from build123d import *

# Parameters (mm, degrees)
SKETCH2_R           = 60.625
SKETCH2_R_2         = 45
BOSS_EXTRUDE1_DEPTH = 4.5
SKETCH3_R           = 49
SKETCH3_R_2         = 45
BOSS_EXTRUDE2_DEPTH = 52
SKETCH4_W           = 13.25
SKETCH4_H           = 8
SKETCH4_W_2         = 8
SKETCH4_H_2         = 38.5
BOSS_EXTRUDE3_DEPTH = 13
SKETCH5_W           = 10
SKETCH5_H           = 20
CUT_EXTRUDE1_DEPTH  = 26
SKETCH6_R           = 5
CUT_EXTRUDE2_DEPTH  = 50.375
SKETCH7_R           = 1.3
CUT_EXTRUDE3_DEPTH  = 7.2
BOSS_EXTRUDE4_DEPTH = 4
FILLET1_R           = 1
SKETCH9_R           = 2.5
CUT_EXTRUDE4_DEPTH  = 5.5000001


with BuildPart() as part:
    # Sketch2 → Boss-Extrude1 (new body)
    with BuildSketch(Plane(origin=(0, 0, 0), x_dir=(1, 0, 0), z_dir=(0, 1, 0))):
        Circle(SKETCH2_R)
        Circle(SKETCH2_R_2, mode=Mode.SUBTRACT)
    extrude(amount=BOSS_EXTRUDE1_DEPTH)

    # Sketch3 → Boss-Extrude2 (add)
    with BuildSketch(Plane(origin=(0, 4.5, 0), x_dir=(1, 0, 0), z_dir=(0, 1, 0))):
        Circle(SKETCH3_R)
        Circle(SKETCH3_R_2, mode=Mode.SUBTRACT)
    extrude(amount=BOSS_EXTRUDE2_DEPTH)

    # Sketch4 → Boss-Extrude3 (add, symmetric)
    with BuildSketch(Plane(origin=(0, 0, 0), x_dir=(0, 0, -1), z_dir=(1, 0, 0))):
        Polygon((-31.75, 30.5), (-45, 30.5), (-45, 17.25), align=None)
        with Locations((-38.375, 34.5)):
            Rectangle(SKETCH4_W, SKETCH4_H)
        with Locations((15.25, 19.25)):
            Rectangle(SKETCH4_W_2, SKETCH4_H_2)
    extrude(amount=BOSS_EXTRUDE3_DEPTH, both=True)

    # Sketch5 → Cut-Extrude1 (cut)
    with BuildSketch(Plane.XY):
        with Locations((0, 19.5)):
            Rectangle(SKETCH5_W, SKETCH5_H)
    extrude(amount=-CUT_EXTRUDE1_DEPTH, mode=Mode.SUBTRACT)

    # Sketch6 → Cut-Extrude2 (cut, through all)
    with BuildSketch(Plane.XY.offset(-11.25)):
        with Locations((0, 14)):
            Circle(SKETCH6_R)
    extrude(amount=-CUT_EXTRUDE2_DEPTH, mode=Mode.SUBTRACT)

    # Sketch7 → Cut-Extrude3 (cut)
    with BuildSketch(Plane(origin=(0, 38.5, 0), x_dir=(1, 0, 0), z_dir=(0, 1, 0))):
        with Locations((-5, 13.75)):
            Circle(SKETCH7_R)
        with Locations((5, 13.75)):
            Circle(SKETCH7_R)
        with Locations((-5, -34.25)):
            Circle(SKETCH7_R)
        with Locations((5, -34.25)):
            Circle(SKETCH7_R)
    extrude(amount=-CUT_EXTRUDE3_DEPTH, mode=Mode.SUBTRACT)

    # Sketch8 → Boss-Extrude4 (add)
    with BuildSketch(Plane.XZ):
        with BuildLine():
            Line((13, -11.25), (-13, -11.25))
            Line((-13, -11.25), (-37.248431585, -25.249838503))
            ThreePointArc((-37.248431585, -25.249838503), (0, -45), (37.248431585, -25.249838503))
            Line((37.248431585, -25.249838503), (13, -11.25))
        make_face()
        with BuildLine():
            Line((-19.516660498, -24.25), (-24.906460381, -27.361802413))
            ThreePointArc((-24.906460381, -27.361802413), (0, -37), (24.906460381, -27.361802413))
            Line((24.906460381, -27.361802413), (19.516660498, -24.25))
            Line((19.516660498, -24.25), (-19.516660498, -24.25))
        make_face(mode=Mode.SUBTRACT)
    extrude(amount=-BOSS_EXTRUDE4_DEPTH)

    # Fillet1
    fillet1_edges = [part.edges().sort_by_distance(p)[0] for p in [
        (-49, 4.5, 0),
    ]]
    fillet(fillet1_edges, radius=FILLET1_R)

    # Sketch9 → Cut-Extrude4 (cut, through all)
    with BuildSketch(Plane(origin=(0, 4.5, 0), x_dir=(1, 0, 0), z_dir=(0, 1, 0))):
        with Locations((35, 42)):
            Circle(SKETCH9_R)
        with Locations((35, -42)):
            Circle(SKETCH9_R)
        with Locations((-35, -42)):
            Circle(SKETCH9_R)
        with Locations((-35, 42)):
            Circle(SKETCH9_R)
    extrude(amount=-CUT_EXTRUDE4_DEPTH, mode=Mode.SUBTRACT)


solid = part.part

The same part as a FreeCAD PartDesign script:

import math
import FreeCAD as App
import Part
import Sketcher
Q = App.Units.Quantity


def edges_at(feature, points):
    """Names of the edges that pass closest to the given points."""
    edges = feature.Shape.Edges
    near = lambda p: min(range(len(edges)), key=lambda i: edges[i].distToShape(Part.Vertex(*p))[0])
    return sorted({f"Edge{near(p) + 1}" for p in points})


def add_polygon(sketch, points):
    """Adds a closed chain of lines whose ends are joined by coincident constraints."""
    first, n = sketch.GeometryCount, len(points)
    for a, b in zip(points, points[1:] + points[:1]):
        sketch.addGeometry(Part.LineSegment(App.Vector(*a, 0), App.Vector(*b, 0)), False)
    for i in range(n):
        sketch.addConstraint(Sketcher.Constraint("Coincident", first + i, 2, first + (i + 1) % n, 1))

doc = App.newDocument("Part")
params = doc.addObject("Spreadsheet::Sheet", "Params")
for row, (alias, value) in enumerate([
    ("sketch1_diameter", "90 mm"),
    ("sketch1_diameter2", "121.25 mm"),
    ("pad1_length", "4.5 mm"),
    ("sketch2_diameter", "98 mm"),
    ("sketch2_diameter2", "90 mm"),
    ("pad2_length", "52 mm"),
    ("sketch3_width", "8 mm"),
    ("sketch3_width2", "38.5 mm"),
    ("sketch3_width3", "21.25 mm"),
    ("pad3_length", "26 mm"),
    ("sketch4_width", "10 mm"),
    ("sketch4_height", "20 mm"),
    ("pocket1_length", "26 mm"),
    ("sketch5_diameter", "10 mm"),
    ("sketch6_diameter", "2.6 mm"),
    ("pocket3_length", "7.2 mm"),
    ("sketch7_radius", "45 mm"),
    ("sketch7_radius2", "37 mm"),
    ("sketch7_width", "26 mm"),
    ("pad4_length", "4 mm"),
    ("fillet_radius", "1 mm"),
    ("sketch8_diameter", "5 mm"),
], start=1):
    params.set(f"A{row}", alias)
    params.set(f"B{row}", "=" + value)
    params.setAlias(f"B{row}", alias)

body = doc.addObject("PartDesign::Body", "Body")
body.AllowCompound = True

sketch1 = doc.addObject("Sketcher::SketchObject", "Sketch")
body.addObject(sketch1)
sketch1.AttachmentSupport = (doc.XZ_Plane, [""])
sketch1.MapMode = "FlatFace"
sketch1.addGeometry(Part.Circle(App.Vector(0, 0, 0), App.Vector(0, 0, 1), 61), False)
sketch1.addGeometry(Part.Circle(App.Vector(0, 0, 0), App.Vector(0, 0, 1), 45), False)
sketch1.addConstraint(Sketcher.Constraint("Coincident", 0, 3, -1, 1))
sketch1.addConstraint(Sketcher.Constraint("Coincident", 1, 3, -1, 1))
sketch1.addConstraint(Sketcher.Constraint("Diameter", 1, 90.0))
sketch1.addConstraint(Sketcher.Constraint("Diameter", 0, 121.25))
sketch1.setExpression("Constraints[2]", "Params.sketch1_diameter")
sketch1.setExpression("Constraints[3]", "Params.sketch1_diameter2")
pad1 = doc.addObject("PartDesign::Pad", "Pad")
body.addObject(pad1)
pad1.Profile = sketch1
pad1.setExpression("Length", "Params.pad1_length")
pad1.Reversed = True

sketch2 = doc.addObject("Sketcher::SketchObject", "Sketch001")
body.addObject(sketch2)
sketch2.AttachmentSupport = (doc.XZ_Plane, [""])
sketch2.MapMode = "FlatFace"
sketch2.AttachmentOffset = App.Placement(App.Vector(0, 0, -4.5), App.Rotation())
sketch2.addGeometry(Part.Circle(App.Vector(0, 0, 0), App.Vector(0, 0, 1), 49), False)
sketch2.addGeometry(Part.Circle(App.Vector(0, 0, 0), App.Vector(0, 0, 1), 45), False)
sketch2.addConstraint(Sketcher.Constraint("Coincident", 0, 3, -1, 1))
sketch2.addConstraint(Sketcher.Constraint("Coincident", 1, 3, -1, 1))
sketch2.addConstraint(Sketcher.Constraint("Diameter", 0, 98.0))
sketch2.addConstraint(Sketcher.Constraint("Diameter", 1, 90.0))
sketch2.setExpression("Constraints[2]", "Params.sketch2_diameter")
sketch2.setExpression("Constraints[3]", "Params.sketch2_diameter2")
pad2 = doc.addObject("PartDesign::Pad", "Pad001")
body.addObject(pad2)
pad2.Profile = sketch2
pad2.setExpression("Length", "Params.pad2_length")
pad2.Reversed = True

sketch3 = doc.addObject("Sketcher::SketchObject", "Sketch002")
body.addObject(sketch3)
sketch3.AttachmentSupport = (doc.YZ_Plane, [""])
sketch3.MapMode = "FlatFace"
add_polygon(sketch3, [(17, 45), (30, 32), (38, 32), (38, 45)])
add_polygon(sketch3, [(38, -11), (0, -11), (0, -19), (38, -19)])
sketch3.addConstraint(Sketcher.Constraint("Horizontal", 1))
sketch3.addConstraint(Sketcher.Constraint("Vertical", 2))
sketch3.addConstraint(Sketcher.Constraint("Horizontal", 3))
sketch3.addConstraint(Sketcher.Constraint("Horizontal", 4))
sketch3.addConstraint(Sketcher.Constraint("Vertical", 5))
sketch3.addConstraint(Sketcher.Constraint("Horizontal", 6))
sketch3.addConstraint(Sketcher.Constraint("Vertical", 7))
sketch3.addConstraint(Sketcher.Constraint("PointOnObject", 4, 2, -2))
sketch3.addConstraint(Sketcher.Constraint("Vertical", 2, 2, 6, 2))
sketch3.addConstraint(Sketcher.Constraint("Equal", 1, 5))
sketch3.addConstraint(Sketcher.Constraint("DistanceX", 1, 1, 1, 2, 8.0))
sketch3.addConstraint(Sketcher.Constraint("Angle", 0, Q("-45 deg")))
sketch3.addConstraint(Sketcher.Constraint("DistanceX", 4, 2, 4, 1, 38.5))
sketch3.addConstraint(Sketcher.Constraint("DistanceY", -1, 1, 2, 2, 45.0))
sketch3.addConstraint(Sketcher.Constraint("DistanceY", 4, 2, 0, 2, 43.0))
sketch3.addConstraint(Sketcher.Constraint("DistanceX", 3, 2, 3, 1, 21.25))
sketch3.setExpression("Constraints[18]", "Params.sketch3_width")
sketch3.setExpression("Constraints[20]", "Params.sketch3_width2")
sketch3.setExpression("Constraints[23]", "Params.sketch3_width3")
pad3 = doc.addObject("PartDesign::Pad", "Pad002")
body.addObject(pad3)
pad3.Profile = sketch3
pad3.setExpression("Length", "Params.pad3_length")
pad3.Midplane = True

sketch4 = doc.addObject("Sketcher::SketchObject", "Sketch003")
body.addObject(sketch4)
sketch4.AttachmentSupport = (doc.XY_Plane, [""])
sketch4.MapMode = "FlatFace"
add_polygon(sketch4, [(-5, 30), (-5, 10), (5, 10), (5, 30)])
sketch4.addConstraint(Sketcher.Constraint("Vertical", 0))
sketch4.addConstraint(Sketcher.Constraint("Horizontal", 1))
sketch4.addConstraint(Sketcher.Constraint("Vertical", 2))
sketch4.addConstraint(Sketcher.Constraint("Horizontal", 3))
sketch4.addConstraint(Sketcher.Constraint("DistanceX", 1, 1, 1, 2, 10.0))
sketch4.addConstraint(Sketcher.Constraint("DistanceY", 0, 2, 0, 1, 20.0))
sketch4.addConstraint(Sketcher.Constraint("DistanceX", 0, 2, -1, 1, 5.0))
sketch4.addConstraint(Sketcher.Constraint("DistanceY", -1, 1, 0, 2, 9.5))
sketch4.setExpression("Constraints[8]", "Params.sketch4_width")
sketch4.setExpression("Constraints[9]", "Params.sketch4_height")
pocket1 = doc.addObject("PartDesign::Pocket", "Pocket")
body.addObject(pocket1)
pocket1.Profile = sketch4
pocket1.setExpression("Length", "Params.pocket1_length")

sketch5 = doc.addObject("Sketcher::SketchObject", "Sketch004")
body.addObject(sketch5)
sketch5.AttachmentSupport = (doc.XY_Plane, [""])
sketch5.MapMode = "FlatFace"
sketch5.AttachmentOffset = App.Placement(App.Vector(0, 0, -11.25), App.Rotation())
sketch5.addGeometry(Part.Circle(App.Vector(0, 14, 0), App.Vector(0, 0, 1), 5), False)
sketch5.addConstraint(Sketcher.Constraint("PointOnObject", 0, 3, -2))
sketch5.addConstraint(Sketcher.Constraint("Diameter", 0, 10.0))
sketch5.addConstraint(Sketcher.Constraint("DistanceY", -1, 1, 0, 3, 14.0))
sketch5.setExpression("Constraints[1]", "Params.sketch5_diameter")
pocket2 = doc.addObject("PartDesign::Pocket", "Pocket001")
body.addObject(pocket2)
pocket2.Profile = sketch5
pocket2.Type = "ThroughAll"

sketch6 = doc.addObject("Sketcher::SketchObject", "Sketch005")
body.addObject(sketch6)
sketch6.AttachmentSupport = (doc.XZ_Plane, [""])
sketch6.MapMode = "FlatFace"
sketch6.AttachmentOffset = App.Placement(App.Vector(0, 0, -38.5), App.Rotation())
sketch6.addGeometry(Part.Circle(App.Vector(-5, -13.8, 0), App.Vector(0, 0, 1), 1.3), False)
sketch6.addGeometry(Part.Circle(App.Vector(5, -13.8, 0), App.Vector(0, 0, 1), 1.3), False)
sketch6.addGeometry(Part.Circle(App.Vector(-5, 34.2, 0), App.Vector(0, 0, 1), 1.3), False)
sketch6.addGeometry(Part.Circle(App.Vector(5, 34.2, 0), App.Vector(0, 0, 1), 1.3), False)
sketch6.addConstraint(Sketcher.Constraint("Equal", 0, 1))
sketch6.addConstraint(Sketcher.Constraint("Equal", 1, 2))
sketch6.addConstraint(Sketcher.Constraint("Equal", 2, 3))
sketch6.addConstraint(Sketcher.Constraint("Symmetric", 0, 3, 1, 3, -2))
sketch6.addConstraint(Sketcher.Constraint("Symmetric", 2, 3, 3, 3, -2))
sketch6.addConstraint(Sketcher.Constraint("Vertical", 0, 3, 2, 3))
sketch6.addConstraint(Sketcher.Constraint("Diameter", 0, 2.6))
sketch6.addConstraint(Sketcher.Constraint("DistanceX", 0, 3, -1, 1, 5.0))
sketch6.addConstraint(Sketcher.Constraint("DistanceY", 0, 3, 2, 3, 48.0))
sketch6.addConstraint(Sketcher.Constraint("DistanceY", 0, 3, -1, 1, 13.75))
sketch6.setExpression("Constraints[6]", "Params.sketch6_diameter")
pocket3 = doc.addObject("PartDesign::Pocket", "Pocket002")
body.addObject(pocket3)
pocket3.Profile = sketch6
pocket3.setExpression("Length", "Params.pocket3_length")
pocket3.Reversed = True

sketch7 = doc.addObject("Sketcher::SketchObject", "Sketch006")
body.addObject(sketch7)
sketch7.AttachmentSupport = (doc.XZ_Plane, [""])
sketch7.MapMode = "FlatFace"
sketch7.addGeometry(Part.LineSegment(App.Vector(13, -11, 0), App.Vector(-13, -11, 0)), False)
sketch7.addGeometry(Part.LineSegment(App.Vector(-13, -11, 0), App.Vector(-37, -25, 0)), False)
sketch7.addGeometry(Part.ArcOfCircle(Part.Circle(App.Vector(0, 0, 0), App.Vector(0, 0, 1), 45), math.radians(-146), math.radians(-34)), False)
sketch7.addGeometry(Part.LineSegment(App.Vector(37, -25, 0), App.Vector(13, -11, 0)), False)
sketch7.addGeometry(Part.LineSegment(App.Vector(-25, -27, 0), App.Vector(-20, -24, 0)), False)
sketch7.addGeometry(Part.LineSegment(App.Vector(-20, -24, 0), App.Vector(20, -24, 0)), False)
sketch7.addGeometry(Part.LineSegment(App.Vector(20, -24, 0), App.Vector(25, -27, 0)), False)
sketch7.addGeometry(Part.ArcOfCircle(Part.Circle(App.Vector(0, 0, 0), App.Vector(0, 0, 1), 37), math.radians(-132), math.radians(-48)), False)
sketch7.addConstraint(Sketcher.Constraint("Coincident", 0, 2, 1, 1))
sketch7.addConstraint(Sketcher.Constraint("Coincident", 1, 2, 2, 1))
sketch7.addConstraint(Sketcher.Constraint("Coincident", 2, 2, 3, 1))
sketch7.addConstraint(Sketcher.Constraint("Coincident", 3, 2, 0, 1))
sketch7.addConstraint(Sketcher.Constraint("Coincident", 4, 2, 5, 1))
sketch7.addConstraint(Sketcher.Constraint("Coincident", 5, 2, 6, 1))
sketch7.addConstraint(Sketcher.Constraint("Coincident", 6, 2, 7, 2))
sketch7.addConstraint(Sketcher.Constraint("Coincident", 7, 1, 4, 1))
sketch7.addConstraint(Sketcher.Constraint("Horizontal", 0))
sketch7.addConstraint(Sketcher.Constraint("Horizontal", 5))
sketch7.addConstraint(Sketcher.Constraint("Coincident", 2, 3, -1, 1))
sketch7.addConstraint(Sketcher.Constraint("Coincident", 7, 3, -1, 1))
sketch7.addConstraint(Sketcher.Constraint("Parallel", 1, 4))
sketch7.addConstraint(Sketcher.Constraint("Parallel", 3, 6))
sketch7.addConstraint(Sketcher.Constraint("Horizontal", 1, 2, 2, 2))
sketch7.addConstraint(Sketcher.Constraint("Horizontal", 6, 2, 7, 1))
sketch7.addConstraint(Sketcher.Constraint("Equal", 1, 3))
sketch7.addConstraint(Sketcher.Constraint("Radius", 2, 45.0))
sketch7.addConstraint(Sketcher.Constraint("Radius", 7, 37.0))
sketch7.addConstraint(Sketcher.Constraint("DistanceX", 0, 2, 0, 1, 26.0))
sketch7.addConstraint(Sketcher.Constraint("Angle", 1, Q("-150 deg")))
sketch7.addConstraint(Sketcher.Constraint("DistanceY", 4, 2, 0, 2, 13.0))
sketch7.addConstraint(Sketcher.Constraint("DistanceY", 0, 2, -1, 1, 11.25))
sketch7.addConstraint(Sketcher.Constraint("DistanceX", 5, 1, 5, 2, 39.033321))
sketch7.setExpression("Constraints[17]", "Params.sketch7_radius")
sketch7.setExpression("Constraints[18]", "Params.sketch7_radius2")
sketch7.setExpression("Constraints[19]", "Params.sketch7_width")
pad4 = doc.addObject("PartDesign::Pad", "Pad003")
body.addObject(pad4)
pad4.Profile = sketch7
pad4.setExpression("Length", "Params.pad4_length")
pad4.Reversed = True
doc.recompute()

fillet = doc.addObject("PartDesign::Fillet", "Fillet")
body.addObject(fillet)
fillet.Base = (pad4, edges_at(pad4, [(-49, 4.5, 0)]))
fillet.setExpression("Radius", "Params.fillet_radius")

sketch8 = doc.addObject("Sketcher::SketchObject", "Sketch007")
body.addObject(sketch8)
sketch8.AttachmentSupport = (doc.XZ_Plane, [""])
sketch8.MapMode = "FlatFace"
sketch8.AttachmentOffset = App.Placement(App.Vector(0, 0, -4.5), App.Rotation())
sketch8.addGeometry(Part.Circle(App.Vector(35, -42, 0), App.Vector(0, 0, 1), 2.5), False)
sketch8.addGeometry(Part.Circle(App.Vector(35, 42, 0), App.Vector(0, 0, 1), 2.5), False)
sketch8.addGeometry(Part.Circle(App.Vector(-35, 42, 0), App.Vector(0, 0, 1), 2.5), False)
sketch8.addGeometry(Part.Circle(App.Vector(-35, -42, 0), App.Vector(0, 0, 1), 2.5), False)
sketch8.addConstraint(Sketcher.Constraint("Equal", 0, 1))
sketch8.addConstraint(Sketcher.Constraint("Equal", 1, 2))
sketch8.addConstraint(Sketcher.Constraint("Equal", 2, 3))
sketch8.addConstraint(Sketcher.Constraint("Symmetric", 0, 3, 2, 3, -1, 1))
sketch8.addConstraint(Sketcher.Constraint("Symmetric", 1, 3, 3, 3, -1, 1))
sketch8.addConstraint(Sketcher.Constraint("Symmetric", 1, 3, 2, 3, -2))
sketch8.addConstraint(Sketcher.Constraint("Diameter", 0, 5.0))
sketch8.addConstraint(Sketcher.Constraint("DistanceX", -1, 1, 0, 3, 35.0))
sketch8.addConstraint(Sketcher.Constraint("DistanceY", 0, 3, -1, 1, 42.0))
sketch8.setExpression("Constraints[6]", "Params.sketch8_diameter")
pocket4 = doc.addObject("PartDesign::Pocket", "Pocket003")
body.addObject(pocket4)
pocket4.Profile = sketch8
pocket4.Type = "ThroughAll"
pocket4.Reversed = True

doc.recompute()
